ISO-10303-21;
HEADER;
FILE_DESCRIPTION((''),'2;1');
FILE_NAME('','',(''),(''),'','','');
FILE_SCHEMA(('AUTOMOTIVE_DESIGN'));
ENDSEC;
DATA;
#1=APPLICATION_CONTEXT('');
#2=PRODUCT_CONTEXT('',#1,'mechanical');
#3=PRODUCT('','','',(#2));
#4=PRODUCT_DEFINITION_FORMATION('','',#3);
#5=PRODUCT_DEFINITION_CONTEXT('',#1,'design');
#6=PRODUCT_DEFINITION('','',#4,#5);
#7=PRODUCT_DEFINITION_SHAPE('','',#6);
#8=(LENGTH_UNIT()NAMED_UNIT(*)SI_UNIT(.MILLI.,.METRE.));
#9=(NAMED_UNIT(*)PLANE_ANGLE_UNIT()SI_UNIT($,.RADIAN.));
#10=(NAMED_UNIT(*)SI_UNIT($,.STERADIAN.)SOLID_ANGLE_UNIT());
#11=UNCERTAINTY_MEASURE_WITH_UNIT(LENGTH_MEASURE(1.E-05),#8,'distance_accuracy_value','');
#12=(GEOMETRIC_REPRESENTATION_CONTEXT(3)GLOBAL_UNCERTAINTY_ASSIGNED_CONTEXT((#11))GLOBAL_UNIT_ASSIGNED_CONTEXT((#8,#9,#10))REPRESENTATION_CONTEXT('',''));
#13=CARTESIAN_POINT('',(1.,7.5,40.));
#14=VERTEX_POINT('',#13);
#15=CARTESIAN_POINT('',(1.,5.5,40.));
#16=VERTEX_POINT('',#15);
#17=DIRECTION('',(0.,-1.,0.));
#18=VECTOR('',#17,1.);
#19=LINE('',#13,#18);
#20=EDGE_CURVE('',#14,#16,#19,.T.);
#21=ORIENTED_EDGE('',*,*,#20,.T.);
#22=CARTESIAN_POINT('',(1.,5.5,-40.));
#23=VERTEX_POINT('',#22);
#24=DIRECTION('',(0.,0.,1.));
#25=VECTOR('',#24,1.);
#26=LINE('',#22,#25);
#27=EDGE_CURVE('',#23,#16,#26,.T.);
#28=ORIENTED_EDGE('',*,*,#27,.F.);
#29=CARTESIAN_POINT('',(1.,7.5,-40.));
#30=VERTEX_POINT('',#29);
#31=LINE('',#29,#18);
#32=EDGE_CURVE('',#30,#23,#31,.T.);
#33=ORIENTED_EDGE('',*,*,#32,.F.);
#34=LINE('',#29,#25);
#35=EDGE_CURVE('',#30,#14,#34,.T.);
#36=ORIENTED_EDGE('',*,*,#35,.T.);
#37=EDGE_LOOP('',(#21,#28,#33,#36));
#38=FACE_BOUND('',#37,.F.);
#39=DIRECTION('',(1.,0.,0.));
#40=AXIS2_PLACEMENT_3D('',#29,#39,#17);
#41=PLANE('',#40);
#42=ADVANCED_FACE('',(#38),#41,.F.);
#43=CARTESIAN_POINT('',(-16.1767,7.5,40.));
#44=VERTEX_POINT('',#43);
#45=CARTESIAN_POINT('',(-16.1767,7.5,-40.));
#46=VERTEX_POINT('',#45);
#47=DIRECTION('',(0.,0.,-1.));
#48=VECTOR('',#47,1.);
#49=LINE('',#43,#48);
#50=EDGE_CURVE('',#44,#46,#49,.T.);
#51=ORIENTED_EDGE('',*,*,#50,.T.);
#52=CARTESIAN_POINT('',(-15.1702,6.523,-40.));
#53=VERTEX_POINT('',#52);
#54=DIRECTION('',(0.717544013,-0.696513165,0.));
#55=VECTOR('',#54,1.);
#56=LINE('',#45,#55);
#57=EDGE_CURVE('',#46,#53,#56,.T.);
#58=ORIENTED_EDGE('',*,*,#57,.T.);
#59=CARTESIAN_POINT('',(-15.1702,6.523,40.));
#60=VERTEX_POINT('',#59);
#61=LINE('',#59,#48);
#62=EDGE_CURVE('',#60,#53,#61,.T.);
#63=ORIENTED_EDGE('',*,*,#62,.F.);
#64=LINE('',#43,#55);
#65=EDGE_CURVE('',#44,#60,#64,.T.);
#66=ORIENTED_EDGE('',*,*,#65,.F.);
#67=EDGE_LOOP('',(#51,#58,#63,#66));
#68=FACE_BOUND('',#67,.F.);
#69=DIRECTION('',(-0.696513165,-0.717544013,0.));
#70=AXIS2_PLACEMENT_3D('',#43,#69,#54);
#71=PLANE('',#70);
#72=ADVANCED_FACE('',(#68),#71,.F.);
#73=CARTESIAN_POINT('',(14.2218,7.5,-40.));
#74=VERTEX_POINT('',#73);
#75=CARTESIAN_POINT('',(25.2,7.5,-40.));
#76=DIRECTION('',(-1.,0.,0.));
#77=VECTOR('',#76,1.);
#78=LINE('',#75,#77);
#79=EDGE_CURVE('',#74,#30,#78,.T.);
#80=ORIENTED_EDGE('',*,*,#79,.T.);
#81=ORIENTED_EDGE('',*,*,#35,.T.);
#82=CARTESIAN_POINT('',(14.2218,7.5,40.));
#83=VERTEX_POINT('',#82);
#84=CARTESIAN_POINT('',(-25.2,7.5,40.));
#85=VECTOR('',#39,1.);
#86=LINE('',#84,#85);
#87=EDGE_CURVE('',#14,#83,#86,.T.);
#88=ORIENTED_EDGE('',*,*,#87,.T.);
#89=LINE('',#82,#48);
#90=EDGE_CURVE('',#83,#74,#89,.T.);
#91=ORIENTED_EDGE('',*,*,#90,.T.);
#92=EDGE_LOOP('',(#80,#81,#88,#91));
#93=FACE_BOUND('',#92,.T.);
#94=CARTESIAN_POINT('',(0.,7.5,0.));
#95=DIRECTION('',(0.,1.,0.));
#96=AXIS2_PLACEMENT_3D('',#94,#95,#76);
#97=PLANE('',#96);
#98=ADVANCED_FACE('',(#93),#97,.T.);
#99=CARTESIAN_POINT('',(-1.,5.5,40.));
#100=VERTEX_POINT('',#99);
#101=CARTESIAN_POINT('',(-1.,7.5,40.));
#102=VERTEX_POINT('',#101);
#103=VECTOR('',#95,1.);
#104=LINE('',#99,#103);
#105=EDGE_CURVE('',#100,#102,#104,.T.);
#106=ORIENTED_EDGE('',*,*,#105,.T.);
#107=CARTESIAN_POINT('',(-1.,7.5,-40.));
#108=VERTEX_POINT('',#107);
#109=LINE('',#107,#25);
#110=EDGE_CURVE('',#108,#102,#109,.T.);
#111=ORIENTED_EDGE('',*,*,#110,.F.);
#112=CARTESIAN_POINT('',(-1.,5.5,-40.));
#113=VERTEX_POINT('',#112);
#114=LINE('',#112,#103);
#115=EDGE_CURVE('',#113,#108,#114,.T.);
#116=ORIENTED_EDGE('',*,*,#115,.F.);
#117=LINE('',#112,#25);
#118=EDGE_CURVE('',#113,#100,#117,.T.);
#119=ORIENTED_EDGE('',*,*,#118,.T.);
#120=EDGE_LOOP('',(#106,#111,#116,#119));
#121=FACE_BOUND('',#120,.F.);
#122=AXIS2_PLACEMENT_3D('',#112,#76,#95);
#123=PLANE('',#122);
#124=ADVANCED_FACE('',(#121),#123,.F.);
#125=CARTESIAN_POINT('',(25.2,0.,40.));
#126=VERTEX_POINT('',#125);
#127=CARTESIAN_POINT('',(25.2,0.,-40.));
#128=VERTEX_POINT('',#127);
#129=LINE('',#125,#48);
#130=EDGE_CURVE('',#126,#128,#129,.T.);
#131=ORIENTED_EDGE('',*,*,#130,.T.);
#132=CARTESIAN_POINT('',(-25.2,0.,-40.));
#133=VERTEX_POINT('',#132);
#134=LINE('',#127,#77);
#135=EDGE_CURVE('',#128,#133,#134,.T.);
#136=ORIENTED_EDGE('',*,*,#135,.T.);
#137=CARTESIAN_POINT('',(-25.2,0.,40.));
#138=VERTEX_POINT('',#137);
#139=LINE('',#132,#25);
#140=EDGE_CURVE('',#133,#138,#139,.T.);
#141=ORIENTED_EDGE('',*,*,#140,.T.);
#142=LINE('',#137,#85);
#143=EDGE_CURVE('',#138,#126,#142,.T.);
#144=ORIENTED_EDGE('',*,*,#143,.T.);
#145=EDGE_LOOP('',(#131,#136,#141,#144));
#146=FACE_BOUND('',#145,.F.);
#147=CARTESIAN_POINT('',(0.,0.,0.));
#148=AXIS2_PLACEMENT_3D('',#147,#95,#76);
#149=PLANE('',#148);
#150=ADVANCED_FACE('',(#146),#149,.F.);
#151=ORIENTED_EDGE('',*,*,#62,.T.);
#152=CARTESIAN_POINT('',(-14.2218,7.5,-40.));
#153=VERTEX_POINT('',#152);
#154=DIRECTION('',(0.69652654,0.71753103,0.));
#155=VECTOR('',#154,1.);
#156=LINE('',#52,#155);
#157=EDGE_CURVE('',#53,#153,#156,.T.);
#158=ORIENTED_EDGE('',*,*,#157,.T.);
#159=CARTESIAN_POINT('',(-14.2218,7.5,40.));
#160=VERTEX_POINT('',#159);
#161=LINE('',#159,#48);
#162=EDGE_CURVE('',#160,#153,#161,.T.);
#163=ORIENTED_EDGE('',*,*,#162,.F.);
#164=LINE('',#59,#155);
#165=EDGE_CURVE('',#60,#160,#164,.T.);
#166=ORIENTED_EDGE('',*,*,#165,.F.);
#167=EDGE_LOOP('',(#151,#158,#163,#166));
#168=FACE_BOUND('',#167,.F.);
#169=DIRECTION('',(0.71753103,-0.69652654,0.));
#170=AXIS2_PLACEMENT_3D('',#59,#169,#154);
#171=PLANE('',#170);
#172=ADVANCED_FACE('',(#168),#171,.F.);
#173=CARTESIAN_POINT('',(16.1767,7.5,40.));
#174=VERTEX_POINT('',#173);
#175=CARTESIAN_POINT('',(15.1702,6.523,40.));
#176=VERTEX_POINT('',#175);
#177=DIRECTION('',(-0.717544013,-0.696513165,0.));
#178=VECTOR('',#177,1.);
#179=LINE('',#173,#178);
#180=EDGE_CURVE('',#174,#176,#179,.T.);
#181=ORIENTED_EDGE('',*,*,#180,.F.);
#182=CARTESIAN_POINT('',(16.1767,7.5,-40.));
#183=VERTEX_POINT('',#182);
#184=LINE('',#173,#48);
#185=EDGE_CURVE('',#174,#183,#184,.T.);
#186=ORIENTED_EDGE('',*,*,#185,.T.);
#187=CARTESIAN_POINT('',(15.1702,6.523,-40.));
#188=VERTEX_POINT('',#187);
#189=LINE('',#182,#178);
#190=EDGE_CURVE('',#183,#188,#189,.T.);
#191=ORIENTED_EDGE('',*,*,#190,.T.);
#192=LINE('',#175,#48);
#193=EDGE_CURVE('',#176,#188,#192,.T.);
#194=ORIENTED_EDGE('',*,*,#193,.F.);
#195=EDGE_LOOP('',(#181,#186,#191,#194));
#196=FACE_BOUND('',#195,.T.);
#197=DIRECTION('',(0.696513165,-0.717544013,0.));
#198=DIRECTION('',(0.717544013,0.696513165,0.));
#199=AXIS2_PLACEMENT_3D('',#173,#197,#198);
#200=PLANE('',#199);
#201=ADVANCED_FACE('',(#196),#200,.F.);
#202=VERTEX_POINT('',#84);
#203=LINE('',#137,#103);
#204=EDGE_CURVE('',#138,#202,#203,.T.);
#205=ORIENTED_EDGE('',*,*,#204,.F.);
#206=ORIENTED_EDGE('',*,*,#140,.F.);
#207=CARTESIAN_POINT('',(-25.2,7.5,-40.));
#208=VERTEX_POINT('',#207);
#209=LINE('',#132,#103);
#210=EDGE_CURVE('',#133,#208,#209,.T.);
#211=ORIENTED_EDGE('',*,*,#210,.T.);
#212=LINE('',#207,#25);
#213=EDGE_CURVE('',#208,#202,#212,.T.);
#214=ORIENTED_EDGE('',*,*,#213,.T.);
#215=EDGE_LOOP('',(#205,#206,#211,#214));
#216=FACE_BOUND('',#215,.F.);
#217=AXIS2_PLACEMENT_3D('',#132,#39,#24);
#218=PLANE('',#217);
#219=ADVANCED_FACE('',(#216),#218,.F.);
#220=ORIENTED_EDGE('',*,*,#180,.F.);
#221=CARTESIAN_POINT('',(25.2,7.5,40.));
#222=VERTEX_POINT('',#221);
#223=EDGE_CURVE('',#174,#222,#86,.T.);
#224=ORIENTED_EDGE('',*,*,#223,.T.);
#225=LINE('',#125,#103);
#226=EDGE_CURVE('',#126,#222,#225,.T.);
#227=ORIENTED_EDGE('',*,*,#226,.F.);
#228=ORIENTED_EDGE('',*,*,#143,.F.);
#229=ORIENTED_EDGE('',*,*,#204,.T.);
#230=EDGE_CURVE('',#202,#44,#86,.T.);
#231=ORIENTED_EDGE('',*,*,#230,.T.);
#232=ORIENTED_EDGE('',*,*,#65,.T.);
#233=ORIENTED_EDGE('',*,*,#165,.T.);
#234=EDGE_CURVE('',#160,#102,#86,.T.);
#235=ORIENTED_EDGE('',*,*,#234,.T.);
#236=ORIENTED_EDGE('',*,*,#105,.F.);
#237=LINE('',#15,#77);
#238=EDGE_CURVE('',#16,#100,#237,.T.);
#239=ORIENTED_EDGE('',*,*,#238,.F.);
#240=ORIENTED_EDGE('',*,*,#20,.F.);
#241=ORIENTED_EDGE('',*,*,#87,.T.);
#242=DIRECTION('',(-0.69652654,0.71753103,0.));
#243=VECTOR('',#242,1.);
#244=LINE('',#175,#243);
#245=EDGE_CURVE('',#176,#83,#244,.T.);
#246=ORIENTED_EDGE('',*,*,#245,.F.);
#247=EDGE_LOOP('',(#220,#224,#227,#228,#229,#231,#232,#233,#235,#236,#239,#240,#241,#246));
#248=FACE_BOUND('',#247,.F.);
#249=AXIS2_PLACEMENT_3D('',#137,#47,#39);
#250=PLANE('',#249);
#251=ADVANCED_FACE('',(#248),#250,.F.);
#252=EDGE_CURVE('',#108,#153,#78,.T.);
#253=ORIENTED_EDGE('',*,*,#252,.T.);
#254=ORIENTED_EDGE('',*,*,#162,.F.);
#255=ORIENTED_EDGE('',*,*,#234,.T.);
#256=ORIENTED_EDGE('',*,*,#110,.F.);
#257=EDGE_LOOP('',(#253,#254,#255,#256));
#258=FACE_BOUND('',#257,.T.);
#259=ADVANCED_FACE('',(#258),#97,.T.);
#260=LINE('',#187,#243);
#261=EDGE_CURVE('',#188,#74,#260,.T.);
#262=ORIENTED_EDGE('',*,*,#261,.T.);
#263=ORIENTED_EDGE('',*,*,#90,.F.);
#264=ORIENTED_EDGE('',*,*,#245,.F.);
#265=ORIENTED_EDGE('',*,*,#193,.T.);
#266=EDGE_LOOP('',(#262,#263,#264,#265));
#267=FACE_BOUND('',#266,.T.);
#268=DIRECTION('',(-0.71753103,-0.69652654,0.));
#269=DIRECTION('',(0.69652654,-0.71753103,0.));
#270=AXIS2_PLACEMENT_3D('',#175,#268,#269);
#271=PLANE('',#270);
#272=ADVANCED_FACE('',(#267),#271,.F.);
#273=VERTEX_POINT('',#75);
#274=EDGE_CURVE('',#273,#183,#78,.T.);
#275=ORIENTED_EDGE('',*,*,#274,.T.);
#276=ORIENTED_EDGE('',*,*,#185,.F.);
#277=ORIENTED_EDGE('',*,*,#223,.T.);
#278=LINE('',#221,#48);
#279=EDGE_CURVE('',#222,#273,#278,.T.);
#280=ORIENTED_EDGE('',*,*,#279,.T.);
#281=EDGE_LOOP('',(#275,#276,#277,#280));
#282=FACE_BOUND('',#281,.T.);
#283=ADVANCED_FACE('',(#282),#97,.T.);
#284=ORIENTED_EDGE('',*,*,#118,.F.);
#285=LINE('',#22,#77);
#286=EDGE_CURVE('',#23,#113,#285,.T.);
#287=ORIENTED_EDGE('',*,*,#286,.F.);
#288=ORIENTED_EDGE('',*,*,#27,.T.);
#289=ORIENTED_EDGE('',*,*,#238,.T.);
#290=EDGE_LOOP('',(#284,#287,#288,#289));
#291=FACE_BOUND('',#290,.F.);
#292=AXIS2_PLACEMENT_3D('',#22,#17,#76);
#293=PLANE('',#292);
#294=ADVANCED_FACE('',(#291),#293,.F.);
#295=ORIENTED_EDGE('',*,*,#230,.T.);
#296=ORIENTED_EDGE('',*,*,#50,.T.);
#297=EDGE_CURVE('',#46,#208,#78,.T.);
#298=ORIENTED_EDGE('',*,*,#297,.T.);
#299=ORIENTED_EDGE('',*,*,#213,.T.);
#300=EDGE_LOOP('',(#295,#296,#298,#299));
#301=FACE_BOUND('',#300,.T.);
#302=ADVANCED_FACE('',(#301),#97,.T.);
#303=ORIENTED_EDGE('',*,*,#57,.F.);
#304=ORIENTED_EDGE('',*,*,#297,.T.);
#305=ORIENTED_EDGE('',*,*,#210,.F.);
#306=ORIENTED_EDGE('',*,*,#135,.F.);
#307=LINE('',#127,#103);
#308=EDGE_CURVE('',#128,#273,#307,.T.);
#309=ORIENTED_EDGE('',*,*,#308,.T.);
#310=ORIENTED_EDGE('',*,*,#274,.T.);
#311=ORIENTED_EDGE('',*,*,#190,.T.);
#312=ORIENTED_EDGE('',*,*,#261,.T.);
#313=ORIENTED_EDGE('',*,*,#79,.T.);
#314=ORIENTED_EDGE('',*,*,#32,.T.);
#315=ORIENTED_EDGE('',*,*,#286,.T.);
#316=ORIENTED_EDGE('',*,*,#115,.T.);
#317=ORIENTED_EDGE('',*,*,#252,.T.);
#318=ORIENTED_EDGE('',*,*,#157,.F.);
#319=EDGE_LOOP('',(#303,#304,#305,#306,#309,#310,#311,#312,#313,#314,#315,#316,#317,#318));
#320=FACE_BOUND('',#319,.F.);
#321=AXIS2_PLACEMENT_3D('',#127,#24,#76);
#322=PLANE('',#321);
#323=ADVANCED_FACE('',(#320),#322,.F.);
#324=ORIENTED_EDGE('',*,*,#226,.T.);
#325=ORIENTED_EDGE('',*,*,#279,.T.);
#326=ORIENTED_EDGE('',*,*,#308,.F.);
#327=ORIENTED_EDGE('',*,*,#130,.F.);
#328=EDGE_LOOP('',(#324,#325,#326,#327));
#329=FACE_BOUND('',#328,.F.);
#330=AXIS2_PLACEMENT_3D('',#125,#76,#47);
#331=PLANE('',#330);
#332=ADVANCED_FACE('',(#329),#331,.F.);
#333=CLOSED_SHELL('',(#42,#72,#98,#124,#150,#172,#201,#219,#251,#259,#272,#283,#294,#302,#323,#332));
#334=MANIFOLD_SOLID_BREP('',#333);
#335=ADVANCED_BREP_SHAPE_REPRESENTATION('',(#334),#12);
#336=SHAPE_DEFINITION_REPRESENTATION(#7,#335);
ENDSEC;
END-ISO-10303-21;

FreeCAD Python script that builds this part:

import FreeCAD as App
import Part
import Sketcher

V = App.Vector
Q = App.Units.Quantity

doc = App.newDocument("Part")
body = doc.addObject("PartDesign::Body", "Body")

sketch1 = body.newObject("Sketcher::SketchObject", "Sketch")
sketch1.AttachmentSupport = (doc.getObject("XZ_Plane"), [""])
sketch1.MapMode = "FlatFace"
sketch1.addGeometry([
    Part.LineSegment(V(-25.2, 40, 0), V(25.2, 40, 0)),
    Part.LineSegment(V(25.2, 40, 0), V(25.2, -40, 0)),
    Part.LineSegment(V(25.2, -40, 0), V(-25.2, -40, 0)),
    Part.LineSegment(V(-25.2, -40, 0), V(-25.2, 40, 0)),
], False)
sketch1.addConstraint([
    Sketcher.Constraint("Coincident", 0, 2, 1, 1),
    Sketcher.Constraint("Coincident", 1, 2, 2, 1),
    Sketcher.Constraint("Coincident", 2, 2, 3, 1),
    Sketcher.Constraint("Coincident", 3, 2, 0, 1),
    Sketcher.Constraint("Horizontal", 0),
    Sketcher.Constraint("Vertical", 1),
    Sketcher.Constraint("Horizontal", 2),
    Sketcher.Constraint("Vertical", 3),
    Sketcher.Constraint("Symmetric", 0, 2, 2, 2, -1, 1),
    Sketcher.Constraint("DistanceY", 1, 2, 1, 1, 80.0),
    Sketcher.Constraint("DistanceX", 0, 1, 0, 2, 50.4),
])
pad1 = body.newObject("PartDesign::Pad", "Pad")
pad1.Profile = sketch1
pad1.Length = 7.5
pad1.Reversed = True

sketch2 = body.newObject("Sketcher::SketchObject", "Sketch001")
sketch2.AttachmentSupport = (doc.getObject("XY_Plane"), [""])
sketch2.MapMode = "FlatFace"
sketch2.AttachmentOffset = App.Placement(V(0, 0, 40), App.Rotation())
sketch2.addGeometry([
    Part.LineSegment(V(-14.2218, 7.5, 0), V(-16.1767, 7.5, 0)),
    Part.LineSegment(V(-16.1767, 7.5, 0), V(-15.1702, 6.523, 0)),
    Part.LineSegment(V(-15.1702, 6.523, 0), V(-14.2218, 7.5, 0)),
], False)
sketch2.addConstraint([
    Sketcher.Constraint("Coincident", 0, 2, 1, 1),
    Sketcher.Constraint("Coincident", 1, 2, 2, 1),
    Sketcher.Constraint("Coincident", 2, 2, 0, 1),
    Sketcher.Constraint("Horizontal", 0),
    Sketcher.Constraint("Perpendicular", 1, 2),
    Sketcher.Constraint("DistanceY", -1, 1, 0, 2, 7.5),
    Sketcher.Constraint("Angle", 2, Q("45.851 deg")),
    Sketcher.Constraint("DistanceX", 0, 2, 0, 1, 1.955),
    Sketcher.Constraint("DistanceX", 0, 2, -1, 1, 16.1767),
])
pocket1 = body.newObject("PartDesign::Pocket", "Pocket")
pocket1.Profile = sketch2
pocket1.Length = 80
doc.recompute()

mirrored = body.newObject("PartDesign::Mirrored", "Mirrored")
mirrored.Originals = [pocket1]
mirrored.MirrorPlane = (doc.getObject("YZ_Plane"), [""])
body.Tip = mirrored

sketch3 = body.newObject("Sketcher::SketchObject", "Sketch002")
sketch3.AttachmentSupport = (doc.getObject("XY_Plane"), [""])
sketch3.MapMode = "FlatFace"
sketch3.AttachmentOffset = App.Placement(V(0, 0, -40), App.Rotation())
sketch3.addGeometry([
    Part.LineSegment(V(-1, 5.5, 0), V(-1, 7.5, 0)),
    Part.LineSegment(V(-1, 7.5, 0), V(1, 7.5, 0)),
    Part.LineSegment(V(1, 7.5, 0), V(1, 5.5, 0)),
    Part.LineSegment(V(1, 5.5, 0), V(-1, 5.5, 0)),
], False)
sketch3.addConstraint([
    Sketcher.Constraint("Coincident", 0, 2, 1, 1),
    Sketcher.Constraint("Coincident", 1, 2, 2, 1),
    Sketcher.Constraint("Coincident", 2, 2, 3, 1),
    Sketcher.Constraint("Coincident", 3, 2, 0, 1),
    Sketcher.Constraint("Vertical", 0),
    Sketcher.Constraint("Horizontal", 1),
    Sketcher.Constraint("Vertical", 2),
    Sketcher.Constraint("Horizontal", 3),
    Sketcher.Constraint("Equal", 3, 0),
    Sketcher.Constraint("DistanceX", 1, 1, 1, 2, 2.0),
    Sketcher.Constraint("DistanceX", 0, 2, -1, 1, 1.0),
    Sketcher.Constraint("DistanceY", -1, 1, 0, 2, 7.5),
])
pocket2 = body.newObject("PartDesign::Pocket", "Pocket001")
pocket2.Profile = sketch3
pocket2.Length = 80
pocket2.Reversed = True

doc.recompute()
